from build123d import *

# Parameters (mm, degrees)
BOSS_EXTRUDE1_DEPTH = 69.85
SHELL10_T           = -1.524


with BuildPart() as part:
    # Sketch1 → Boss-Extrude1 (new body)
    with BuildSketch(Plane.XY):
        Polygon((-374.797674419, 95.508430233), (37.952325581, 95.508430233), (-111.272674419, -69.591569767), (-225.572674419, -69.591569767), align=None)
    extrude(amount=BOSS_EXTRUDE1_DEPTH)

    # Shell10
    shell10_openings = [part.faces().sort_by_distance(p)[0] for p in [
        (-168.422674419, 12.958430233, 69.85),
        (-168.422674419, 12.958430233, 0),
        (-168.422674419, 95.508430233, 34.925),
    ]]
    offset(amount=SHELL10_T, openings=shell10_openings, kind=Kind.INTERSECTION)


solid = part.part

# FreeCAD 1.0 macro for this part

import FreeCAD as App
import Part
import Sketcher
Q = App.Units.Quantity


def faces_at(feature, points):
    """Names of the faces that lie closest to the given points."""
    faces = feature.Shape.Faces
    near = lambda p: min(range(len(faces)), key=lambda i: faces[i].distToShape(Part.Vertex(*p))[0])
    return sorted({f"Face{near(p) + 1}" for p in points})

doc = App.newDocument("Part")
body = doc.addObject("PartDesign::Body", "Body")

sketch1 = body.newObject("Sketcher::SketchObject", "Sketch")
sketch1.AttachmentSupport = (doc.getObject("XY_Plane"), [""])
sketch1.MapMode = "FlatFace"
sketch1.addGeometry([
    Part.LineSegment(App.Vector(38, 96, 0), App.Vector(-375, 96, 0)),
    Part.LineSegment(App.Vector(-375, 96, 0), App.Vector(-226, -70, 0)),
    Part.LineSegment(App.Vector(-226, -70, 0), App.Vector(-111, -70, 0)),
    Part.LineSegment(App.Vector(-111, -70, 0), App.Vector(38, 96, 0)),
], False)
sketch1.addConstraint([
    Sketcher.Constraint("Coincident", 0, 2, 1, 1),
    Sketcher.Constraint("Coincident", 1, 2, 2, 1),
    Sketcher.Constraint("Coincident", 2, 2, 3, 1),
    Sketcher.Constraint("Coincident", 3, 2, 0, 1),
    Sketcher.Constraint("Horizontal", 0),
    Sketcher.Constraint("Horizontal", 2),
    Sketcher.Constraint("Equal", 1, 3),
    Sketcher.Constraint("DistanceX", 2, 1, 2, 2, Q("4.5 in")),
    Sketcher.Constraint("DistanceX", 0, 2, 0, 1, Q("16.25 in")),
    Sketcher.Constraint("DistanceY", 1, 2, 0, 2, Q("6.5 in")),
    Sketcher.Constraint("DistanceY", -1, 1, 0, 2, Q("95.50843 mm")),
    Sketcher.Constraint("DistanceX", 0, 2, -1, 1, Q("374.797674 mm")),
])
pad1 = body.newObject("PartDesign::Pad", "Pad")
pad1.Profile = sketch1
pad1.Length = Q("2.75 in")
doc.recompute()

thickness = body.newObject("PartDesign::Thickness", "Thickness")
thickness.Base = (pad1, faces_at(pad1, [(-168.423, 12.958, 69.85), (-168.423, 12.958, 0), (-168.423, 95.508, 34.925)]))
thickness.Value = Q("0.06 in")
thickness.Reversed = True
thickness.Join = "Intersection"

doc.recompute()
